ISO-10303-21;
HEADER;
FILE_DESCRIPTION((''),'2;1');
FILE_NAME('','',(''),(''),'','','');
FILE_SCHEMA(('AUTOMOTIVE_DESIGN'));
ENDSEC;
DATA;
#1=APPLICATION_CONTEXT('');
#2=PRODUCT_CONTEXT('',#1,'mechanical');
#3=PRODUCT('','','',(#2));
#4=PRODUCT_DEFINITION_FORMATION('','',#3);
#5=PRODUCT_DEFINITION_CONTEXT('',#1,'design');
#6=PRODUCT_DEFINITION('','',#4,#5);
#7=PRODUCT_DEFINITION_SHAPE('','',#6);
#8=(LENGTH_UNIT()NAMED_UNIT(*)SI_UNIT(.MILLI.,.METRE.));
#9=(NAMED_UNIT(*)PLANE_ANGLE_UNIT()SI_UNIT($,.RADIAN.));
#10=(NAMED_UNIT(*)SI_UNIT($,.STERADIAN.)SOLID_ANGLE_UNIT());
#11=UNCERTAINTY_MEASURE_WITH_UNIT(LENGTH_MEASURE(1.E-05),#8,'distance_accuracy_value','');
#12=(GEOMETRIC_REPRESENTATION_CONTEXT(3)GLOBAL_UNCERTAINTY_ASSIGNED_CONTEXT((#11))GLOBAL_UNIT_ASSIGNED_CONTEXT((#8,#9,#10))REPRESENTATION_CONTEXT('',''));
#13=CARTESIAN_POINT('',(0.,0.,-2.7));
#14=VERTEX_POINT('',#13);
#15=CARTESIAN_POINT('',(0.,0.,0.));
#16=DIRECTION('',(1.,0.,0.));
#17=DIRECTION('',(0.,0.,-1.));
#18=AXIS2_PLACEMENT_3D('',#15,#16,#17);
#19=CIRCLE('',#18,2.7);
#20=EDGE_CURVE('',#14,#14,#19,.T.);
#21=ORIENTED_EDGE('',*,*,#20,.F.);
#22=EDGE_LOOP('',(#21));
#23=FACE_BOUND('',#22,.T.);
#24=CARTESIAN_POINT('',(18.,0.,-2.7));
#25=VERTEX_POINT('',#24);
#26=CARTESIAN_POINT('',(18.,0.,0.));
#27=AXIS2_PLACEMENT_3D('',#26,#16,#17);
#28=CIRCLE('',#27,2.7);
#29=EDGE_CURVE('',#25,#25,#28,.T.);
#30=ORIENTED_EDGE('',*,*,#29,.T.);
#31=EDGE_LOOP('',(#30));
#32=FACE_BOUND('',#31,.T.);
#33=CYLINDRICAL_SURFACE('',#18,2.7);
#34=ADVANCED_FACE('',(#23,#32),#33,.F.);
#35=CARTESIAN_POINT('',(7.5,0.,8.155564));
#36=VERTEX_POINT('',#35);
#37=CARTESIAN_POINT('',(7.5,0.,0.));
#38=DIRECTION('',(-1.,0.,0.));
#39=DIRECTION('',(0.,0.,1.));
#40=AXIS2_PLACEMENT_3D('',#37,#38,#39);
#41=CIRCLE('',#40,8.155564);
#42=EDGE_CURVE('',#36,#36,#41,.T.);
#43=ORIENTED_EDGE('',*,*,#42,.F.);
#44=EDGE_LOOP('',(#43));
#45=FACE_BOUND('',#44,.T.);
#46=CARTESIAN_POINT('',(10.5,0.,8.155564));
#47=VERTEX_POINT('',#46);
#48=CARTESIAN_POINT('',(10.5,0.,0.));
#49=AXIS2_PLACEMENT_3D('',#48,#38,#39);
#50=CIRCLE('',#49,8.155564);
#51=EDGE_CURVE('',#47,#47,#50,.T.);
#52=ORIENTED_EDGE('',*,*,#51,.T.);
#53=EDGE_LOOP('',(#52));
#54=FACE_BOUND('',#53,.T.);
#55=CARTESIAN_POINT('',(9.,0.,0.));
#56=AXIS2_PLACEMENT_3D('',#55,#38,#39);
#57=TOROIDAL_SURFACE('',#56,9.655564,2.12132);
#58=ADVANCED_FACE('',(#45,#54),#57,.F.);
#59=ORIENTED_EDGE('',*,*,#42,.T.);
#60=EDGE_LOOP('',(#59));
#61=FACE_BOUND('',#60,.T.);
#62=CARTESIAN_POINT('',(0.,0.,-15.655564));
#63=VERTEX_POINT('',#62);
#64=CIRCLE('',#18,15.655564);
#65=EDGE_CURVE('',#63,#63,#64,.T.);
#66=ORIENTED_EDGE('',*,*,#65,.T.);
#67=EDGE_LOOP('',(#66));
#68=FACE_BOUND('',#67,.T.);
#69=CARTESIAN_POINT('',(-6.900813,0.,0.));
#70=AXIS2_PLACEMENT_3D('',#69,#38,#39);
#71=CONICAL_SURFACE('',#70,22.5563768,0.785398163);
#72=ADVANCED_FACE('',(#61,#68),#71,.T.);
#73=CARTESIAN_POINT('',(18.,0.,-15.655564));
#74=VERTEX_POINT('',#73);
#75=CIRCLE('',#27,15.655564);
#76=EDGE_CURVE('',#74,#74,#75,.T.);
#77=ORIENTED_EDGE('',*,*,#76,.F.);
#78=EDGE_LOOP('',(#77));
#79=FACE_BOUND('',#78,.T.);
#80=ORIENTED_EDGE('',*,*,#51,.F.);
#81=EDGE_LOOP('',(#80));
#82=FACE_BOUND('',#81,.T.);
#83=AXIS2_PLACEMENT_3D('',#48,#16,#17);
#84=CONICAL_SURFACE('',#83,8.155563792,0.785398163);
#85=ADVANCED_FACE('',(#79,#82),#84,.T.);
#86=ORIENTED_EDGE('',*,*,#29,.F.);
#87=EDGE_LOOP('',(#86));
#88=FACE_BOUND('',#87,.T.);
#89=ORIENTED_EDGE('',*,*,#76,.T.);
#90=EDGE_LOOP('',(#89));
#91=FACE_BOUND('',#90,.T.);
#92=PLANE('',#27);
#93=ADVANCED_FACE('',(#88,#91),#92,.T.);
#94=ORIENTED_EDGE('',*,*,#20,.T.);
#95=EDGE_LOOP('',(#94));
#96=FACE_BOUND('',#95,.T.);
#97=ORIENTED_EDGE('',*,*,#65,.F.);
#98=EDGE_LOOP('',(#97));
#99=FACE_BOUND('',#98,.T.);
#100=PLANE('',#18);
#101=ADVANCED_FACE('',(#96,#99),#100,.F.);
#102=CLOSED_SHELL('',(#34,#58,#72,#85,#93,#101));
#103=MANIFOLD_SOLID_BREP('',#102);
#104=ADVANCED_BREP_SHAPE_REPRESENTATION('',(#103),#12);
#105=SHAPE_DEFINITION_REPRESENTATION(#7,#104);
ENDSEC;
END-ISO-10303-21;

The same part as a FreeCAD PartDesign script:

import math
import FreeCAD as App
import Part
import Sketcher

V = App.Vector

doc = App.newDocument("Part")
body = doc.addObject("PartDesign::Body", "Body")

# Sketch on YZ plane
sketch1 = body.newObject("Sketcher::SketchObject", "Sketch")
sketch1.AttachmentSupport = (doc.getObject("YZ_Plane"), [""])
sketch1.MapMode = "FlatFace"
sketch1.addGeometry(Part.Circle(V(0, 0, 0), V(0, 0, 1), 17.5), False)
sketch1.addConstraint([
    Sketcher.Constraint("Coincident", 0, 3, -1, 1),
    Sketcher.Constraint("Diameter", 0, 35.0),
])
pad1 = body.newObject("PartDesign::Pad", "Pad")
pad1.Profile = sketch1
pad1.Length = 18

# Sketch on YZ plane
sketch2 = body.newObject("Sketcher::SketchObject", "Sketch001")
sketch2.AttachmentSupport = (doc.getObject("YZ_Plane"), [""])
sketch2.MapMode = "FlatFace"
sketch2.AttachmentOffset = App.Placement(V(0, 0, 18), App.Rotation())
sketch2.addGeometry(Part.Circle(V(0, 0, 0), V(0, 0, 1), 2.7), False)
sketch2.addConstraint([
    Sketcher.Constraint("Coincident", 0, 3, -1, 1),
    Sketcher.Constraint("Diameter", 0, 5.4),
])
pocket1 = body.newObject("PartDesign::Pocket", "Pocket")
pocket1.Profile = sketch2
pocket1.Length = 18

# Sketch on XY plane
sketch3 = body.newObject("Sketcher::SketchObject", "Sketch002")
sketch3.AttachmentSupport = (doc.getObject("XY_Plane"), [""])
sketch3.MapMode = "FlatFace"
sketch3.addGeometry([
    Part.LineSegment(V(10.5, 8.155564, 0), V(24.900813, 22.556377, 0)),
    Part.LineSegment(V(24.900813, 22.556377, 0), V(-6.900813, 22.556377, 0)),
    Part.LineSegment(V(-6.900813, 22.556377, 0), V(7.5, 8.155564, 0)),
    Part.ArcOfCircle(Part.Circle(V(9, 9.655564, 0), V(0, 0, 1), 2.12132), math.radians(-135), math.radians(-45)),
], False)
sketch3.addConstraint([
    Sketcher.Constraint("Coincident", 0, 2, 1, 1),
    Sketcher.Constraint("Coincident", 1, 2, 2, 1),
    Sketcher.Constraint("Tangent", 2, 2, 3, 1),
    Sketcher.Constraint("Tangent", 3, 2, 0, 1),
    Sketcher.Constraint("Horizontal", 1),
    Sketcher.Constraint("Perpendicular", 0, 2),
    Sketcher.Constraint("Horizontal", 2, 2, 3, 2),
    Sketcher.Constraint("DistanceX", -1, 1, 3, 3, 9.0),
    Sketcher.Constraint("DistanceX", 2, 2, 3, 2, 3.0),
    Sketcher.Constraint("DistanceX", 1, 2, 1, 1, 31.801626),
    Sketcher.Constraint("DistanceY", -1, 1, 3, 3, 9.655564),
])
groove = body.newObject("PartDesign::Groove", "Groove")
groove.Profile = sketch3
groove.ReferenceAxis = (sketch3, ["H_Axis"])
groove.Angle = 360

doc.recompute()
